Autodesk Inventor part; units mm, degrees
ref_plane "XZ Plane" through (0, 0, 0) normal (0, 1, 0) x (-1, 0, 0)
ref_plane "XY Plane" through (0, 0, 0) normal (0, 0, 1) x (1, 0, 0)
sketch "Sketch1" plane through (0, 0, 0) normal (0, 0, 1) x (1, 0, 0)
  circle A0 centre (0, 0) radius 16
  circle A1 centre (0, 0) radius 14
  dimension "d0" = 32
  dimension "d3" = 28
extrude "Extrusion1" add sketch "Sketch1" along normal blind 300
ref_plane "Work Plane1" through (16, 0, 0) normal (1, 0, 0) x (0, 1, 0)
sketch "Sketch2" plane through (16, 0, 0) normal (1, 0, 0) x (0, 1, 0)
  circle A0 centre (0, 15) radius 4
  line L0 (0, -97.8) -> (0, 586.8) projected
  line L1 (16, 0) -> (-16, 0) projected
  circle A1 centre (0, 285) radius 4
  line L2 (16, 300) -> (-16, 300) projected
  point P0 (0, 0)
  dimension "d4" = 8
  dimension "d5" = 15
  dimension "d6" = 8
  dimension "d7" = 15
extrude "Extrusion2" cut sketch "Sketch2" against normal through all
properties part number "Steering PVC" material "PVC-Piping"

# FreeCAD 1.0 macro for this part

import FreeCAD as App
import Part
import Sketcher

V = App.Vector

doc = App.newDocument("Part")
body = doc.addObject("PartDesign::Body", "Body")

# Sketch on XY plane
sketch1 = body.newObject("Sketcher::SketchObject", "Sketch")
sketch1.AttachmentSupport = (doc.getObject("XY_Plane"), [""])
sketch1.MapMode = "FlatFace"
sketch1.addGeometry(Part.Circle(V(0, 0, 0), V(0, 0, 1), 16), False)
sketch1.addGeometry(Part.Circle(V(0, 0, 0), V(0, 0, 1), 14), False)
sketch1.addConstraint(Sketcher.Constraint("Coincident", 0, 3, -1, 1))
sketch1.addConstraint(Sketcher.Constraint("Coincident", 1, 3, -1, 1))
sketch1.addConstraint(Sketcher.Constraint("Diameter", 0, 32.0))
sketch1.addConstraint(Sketcher.Constraint("Diameter", 1, 28.0))
pad1 = body.newObject("PartDesign::Pad", "Pad")
pad1.Profile = sketch1
pad1.Length = 300

# Sketch on YZ plane
sketch2 = body.newObject("Sketcher::SketchObject", "Sketch001")
sketch2.AttachmentSupport = (doc.getObject("YZ_Plane"), [""])
sketch2.MapMode = "FlatFace"
sketch2.AttachmentOffset = App.Placement(V(0, 0, 16), App.Rotation())
sketch2.addGeometry(Part.Circle(V(0, 15, 0), V(0, 0, 1), 4), False)
sketch2.addGeometry(Part.Circle(V(0, 285, 0), V(0, 0, 1), 4), False)
sketch2.addConstraint(Sketcher.Constraint("Equal", 0, 1))
sketch2.addConstraint(Sketcher.Constraint("PointOnObject", 0, 3, -2))
sketch2.addConstraint(Sketcher.Constraint("PointOnObject", 1, 3, -2))
sketch2.addConstraint(Sketcher.Constraint("Diameter", 0, 8.0))
sketch2.addConstraint(Sketcher.Constraint("DistanceY", -1, 1, 0, 3, 15.0))
sketch2.addConstraint(Sketcher.Constraint("DistanceY", -1, 1, 1, 3, 285.0))
pocket1 = body.newObject("PartDesign::Pocket", "Pocket")
pocket1.Profile = sketch2
pocket1.Type = "ThroughAll"

doc.recompute()
